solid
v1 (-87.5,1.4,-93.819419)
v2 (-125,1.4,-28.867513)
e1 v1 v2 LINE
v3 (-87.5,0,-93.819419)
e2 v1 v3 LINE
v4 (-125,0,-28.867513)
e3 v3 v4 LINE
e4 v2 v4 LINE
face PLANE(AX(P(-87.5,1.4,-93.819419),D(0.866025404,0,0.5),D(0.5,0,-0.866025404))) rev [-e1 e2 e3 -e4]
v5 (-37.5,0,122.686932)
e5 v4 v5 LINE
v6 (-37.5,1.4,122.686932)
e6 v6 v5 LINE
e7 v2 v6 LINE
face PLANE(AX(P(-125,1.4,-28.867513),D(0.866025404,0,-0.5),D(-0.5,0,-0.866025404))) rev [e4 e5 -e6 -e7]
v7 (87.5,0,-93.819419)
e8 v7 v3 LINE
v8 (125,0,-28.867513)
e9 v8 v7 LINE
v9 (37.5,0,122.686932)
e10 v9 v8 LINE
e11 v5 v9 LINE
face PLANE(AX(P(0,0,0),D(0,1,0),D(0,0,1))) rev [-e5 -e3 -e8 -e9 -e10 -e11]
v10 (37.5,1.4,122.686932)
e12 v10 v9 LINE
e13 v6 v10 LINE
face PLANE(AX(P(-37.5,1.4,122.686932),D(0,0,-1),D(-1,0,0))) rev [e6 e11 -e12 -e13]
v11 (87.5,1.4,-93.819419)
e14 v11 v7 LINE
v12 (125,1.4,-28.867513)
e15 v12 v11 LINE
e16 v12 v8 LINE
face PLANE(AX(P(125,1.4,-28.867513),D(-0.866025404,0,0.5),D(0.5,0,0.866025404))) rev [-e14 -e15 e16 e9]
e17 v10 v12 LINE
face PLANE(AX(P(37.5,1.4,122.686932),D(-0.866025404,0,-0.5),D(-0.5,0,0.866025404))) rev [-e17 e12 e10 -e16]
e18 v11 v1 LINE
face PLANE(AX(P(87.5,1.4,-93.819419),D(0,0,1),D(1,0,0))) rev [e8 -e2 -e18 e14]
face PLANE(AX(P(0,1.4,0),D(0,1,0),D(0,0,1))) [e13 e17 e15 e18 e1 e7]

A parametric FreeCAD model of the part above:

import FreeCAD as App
import Part
import Sketcher

V = App.Vector
Q = App.Units.Quantity


def add_polygon(sketch, points):
    """Adds a closed chain of lines whose ends are joined by coincident constraints."""
    first, n = sketch.GeometryCount, len(points)
    for a, b in zip(points, points[1:] + points[:1]):
        sketch.addGeometry(Part.LineSegment(App.Vector(*a, 0), App.Vector(*b, 0)), False)
    for i in range(n):
        sketch.addConstraint(Sketcher.Constraint("Coincident", first + i, 2, first + (i + 1) % n, 1))

doc = App.newDocument("Part")
body = doc.addObject("PartDesign::Body", "Body")

sketch1 = doc.addObject("Sketcher::SketchObject", "Sketch")
body.addObject(sketch1)
sketch1.AttachmentSupport = (doc.XZ_Plane, [""])
sketch1.MapMode = "FlatFace"
add_polygon(sketch1, [(88, -94), (-88, -94), (-125, -29), (-38, 123), (38, 123), (125, -29)])
sketch1.addConstraint([
    Sketcher.Constraint("Horizontal", 0),
    Sketcher.Constraint("Horizontal", 3),
    Sketcher.Constraint("Symmetric", 1, 2, 4, 2, -2),
    Sketcher.Constraint("Parallel", 1, 4),
    Sketcher.Constraint("Parallel", 2, 5),
    Sketcher.Constraint("Equal", 2, 4),
    Sketcher.Constraint("DistanceX", 0, 2, 0, 1, 175.0),
    Sketcher.Constraint("DistanceX", 3, 1, 3, 2, 75.0),
    Sketcher.Constraint("Angle", 1, Q("120 deg")),
    Sketcher.Constraint("Distance", 1, 75.0),
    Sketcher.Constraint("DistanceY", 0, 2, -1, 1, 93.819419),
])
pad1 = doc.addObject("PartDesign::Pad", "Pad")
body.addObject(pad1)
pad1.Profile = sketch1
pad1.Length = 1.4
pad1.Reversed = True

doc.recompute()
